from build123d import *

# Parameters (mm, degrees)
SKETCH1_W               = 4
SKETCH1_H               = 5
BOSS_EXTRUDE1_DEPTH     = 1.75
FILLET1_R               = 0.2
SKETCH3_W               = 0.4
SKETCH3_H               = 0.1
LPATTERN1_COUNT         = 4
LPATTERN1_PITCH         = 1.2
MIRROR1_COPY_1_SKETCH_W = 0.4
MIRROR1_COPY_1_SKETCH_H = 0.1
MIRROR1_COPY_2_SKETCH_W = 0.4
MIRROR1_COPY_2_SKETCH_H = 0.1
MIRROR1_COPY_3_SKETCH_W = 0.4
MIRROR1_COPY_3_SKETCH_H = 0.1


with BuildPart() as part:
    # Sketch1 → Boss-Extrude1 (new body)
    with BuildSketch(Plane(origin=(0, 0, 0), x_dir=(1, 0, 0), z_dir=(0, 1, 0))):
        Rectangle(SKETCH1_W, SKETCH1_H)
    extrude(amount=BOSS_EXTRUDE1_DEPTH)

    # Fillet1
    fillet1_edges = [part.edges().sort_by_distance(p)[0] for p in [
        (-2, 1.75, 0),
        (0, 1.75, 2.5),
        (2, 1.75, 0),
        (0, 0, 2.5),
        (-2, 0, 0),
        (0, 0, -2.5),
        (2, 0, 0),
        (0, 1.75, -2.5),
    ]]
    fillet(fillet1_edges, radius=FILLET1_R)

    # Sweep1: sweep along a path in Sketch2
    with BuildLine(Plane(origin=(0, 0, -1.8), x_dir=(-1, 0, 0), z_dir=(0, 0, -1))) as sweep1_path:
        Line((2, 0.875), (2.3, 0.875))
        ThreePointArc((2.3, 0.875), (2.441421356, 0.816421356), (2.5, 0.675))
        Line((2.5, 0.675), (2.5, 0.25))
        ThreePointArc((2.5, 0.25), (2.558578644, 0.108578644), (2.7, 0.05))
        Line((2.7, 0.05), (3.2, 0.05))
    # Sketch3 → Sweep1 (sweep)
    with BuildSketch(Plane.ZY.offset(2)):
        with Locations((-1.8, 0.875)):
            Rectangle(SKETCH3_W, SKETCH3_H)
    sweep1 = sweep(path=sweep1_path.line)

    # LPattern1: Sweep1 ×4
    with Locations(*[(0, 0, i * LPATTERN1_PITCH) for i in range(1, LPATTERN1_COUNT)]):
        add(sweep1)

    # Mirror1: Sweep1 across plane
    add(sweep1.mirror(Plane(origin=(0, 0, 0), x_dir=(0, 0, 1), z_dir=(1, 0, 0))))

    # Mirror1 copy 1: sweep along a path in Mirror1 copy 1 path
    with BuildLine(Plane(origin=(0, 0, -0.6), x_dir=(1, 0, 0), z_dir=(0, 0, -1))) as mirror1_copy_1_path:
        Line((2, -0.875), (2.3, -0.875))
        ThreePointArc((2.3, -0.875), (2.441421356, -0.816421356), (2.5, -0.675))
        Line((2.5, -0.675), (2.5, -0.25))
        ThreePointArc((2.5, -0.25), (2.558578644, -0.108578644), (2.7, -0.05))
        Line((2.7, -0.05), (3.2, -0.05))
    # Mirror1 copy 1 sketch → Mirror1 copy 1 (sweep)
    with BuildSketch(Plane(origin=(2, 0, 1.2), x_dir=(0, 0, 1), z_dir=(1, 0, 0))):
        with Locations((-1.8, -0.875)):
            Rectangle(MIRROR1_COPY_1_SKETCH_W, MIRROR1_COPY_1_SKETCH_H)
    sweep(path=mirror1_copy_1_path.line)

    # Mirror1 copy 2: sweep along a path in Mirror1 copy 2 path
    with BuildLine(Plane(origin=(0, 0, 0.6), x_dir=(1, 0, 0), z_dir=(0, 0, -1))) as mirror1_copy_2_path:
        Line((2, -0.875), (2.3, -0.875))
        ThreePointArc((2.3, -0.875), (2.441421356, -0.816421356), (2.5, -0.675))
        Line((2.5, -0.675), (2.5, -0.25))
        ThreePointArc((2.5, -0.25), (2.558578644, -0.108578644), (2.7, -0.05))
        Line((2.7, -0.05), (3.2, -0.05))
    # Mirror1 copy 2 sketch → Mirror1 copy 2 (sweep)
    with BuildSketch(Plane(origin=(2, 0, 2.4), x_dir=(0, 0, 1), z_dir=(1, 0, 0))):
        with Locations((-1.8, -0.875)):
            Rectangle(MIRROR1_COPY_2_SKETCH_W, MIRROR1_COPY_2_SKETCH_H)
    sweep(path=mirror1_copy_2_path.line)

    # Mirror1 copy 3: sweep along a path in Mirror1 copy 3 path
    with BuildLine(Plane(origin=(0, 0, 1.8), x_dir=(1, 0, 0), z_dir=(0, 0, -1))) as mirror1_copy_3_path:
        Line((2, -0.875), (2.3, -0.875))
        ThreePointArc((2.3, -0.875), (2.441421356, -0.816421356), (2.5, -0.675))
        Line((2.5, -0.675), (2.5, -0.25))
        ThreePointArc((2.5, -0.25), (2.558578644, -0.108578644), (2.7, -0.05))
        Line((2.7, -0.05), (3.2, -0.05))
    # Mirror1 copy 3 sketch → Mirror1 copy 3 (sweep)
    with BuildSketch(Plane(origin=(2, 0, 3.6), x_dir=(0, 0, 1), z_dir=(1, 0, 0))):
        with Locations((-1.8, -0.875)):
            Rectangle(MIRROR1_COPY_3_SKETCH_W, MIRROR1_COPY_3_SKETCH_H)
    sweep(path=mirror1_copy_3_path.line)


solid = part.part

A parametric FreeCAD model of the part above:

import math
import FreeCAD as App
import Part
import Sketcher

V = App.Vector


def edges_at(feature, points):
    """Names of the edges that pass closest to the given points."""
    edges = feature.Shape.Edges
    near = lambda p: min(range(len(edges)), key=lambda i: edges[i].distToShape(Part.Vertex(*p))[0])
    return sorted({f"Edge{near(p) + 1}" for p in points})

doc = App.newDocument("Part")
body = doc.addObject("PartDesign::Body", "Body")

# Sketch on XZ plane
sketch1 = doc.addObject("Sketcher::SketchObject", "Sketch")
body.addObject(sketch1)
sketch1.AttachmentSupport = (doc.XZ_Plane, [""])
sketch1.MapMode = "FlatFace"
sketch1.addGeometry([
    Part.LineSegment(V(-2, -2.5, 0), V(-2, 2.5, 0)),
    Part.LineSegment(V(-2, 2.5, 0), V(2, 2.5, 0)),
    Part.LineSegment(V(2, 2.5, 0), V(2, -2.5, 0)),
    Part.LineSegment(V(2, -2.5, 0), V(-2, -2.5, 0)),
], False)
sketch1.addConstraint([
    Sketcher.Constraint("Coincident", 0, 2, 1, 1),
    Sketcher.Constraint("Coincident", 1, 2, 2, 1),
    Sketcher.Constraint("Coincident", 2, 2, 3, 1),
    Sketcher.Constraint("Coincident", 3, 2, 0, 1),
    Sketcher.Constraint("Vertical", 0),
    Sketcher.Constraint("Horizontal", 1),
    Sketcher.Constraint("Vertical", 2),
    Sketcher.Constraint("Horizontal", 3),
    Sketcher.Constraint("Symmetric", 0, 2, 2, 2, -1, 1),
    Sketcher.Constraint("DistanceX", 1, 1, 1, 2, 4.0),
    Sketcher.Constraint("DistanceY", 0, 1, 0, 2, 5.0),
])
pad1 = doc.addObject("PartDesign::Pad", "Pad")
body.addObject(pad1)
pad1.Profile = sketch1
pad1.Length = 1.75
pad1.Reversed = True
doc.recompute()

fillet = doc.addObject("PartDesign::Fillet", "Fillet")
body.addObject(fillet)
fillet.Base = (pad1, edges_at(pad1, [
    (-2, 1.75, 0),
    (0, 1.75, 2.5),
    (2, 1.75, 0),
    (0, 0, 2.5),
    (-2, 0, 0),
    (0, 0, -2.5),
    (2, 0, 0),
    (0, 1.75, -2.5),
]))
fillet.Radius = 0.2

# Sketch on YZ plane
sketch2 = doc.addObject("Sketcher::SketchObject", "Sketch001")
body.addObject(sketch2)
sketch2.AttachmentSupport = (doc.YZ_Plane, [""])
sketch2.MapMode = "FlatFace"
sketch2.AttachmentOffset = App.Placement(V(0, 0, -2), App.Rotation())
sketch2.addGeometry([
    Part.LineSegment(V(0.93, -2, 0), V(0.82, -2, 0)),
    Part.LineSegment(V(0.82, -2, 0), V(0.82, -1.6, 0)),
    Part.LineSegment(V(0.82, -1.6, 0), V(0.93, -1.6, 0)),
    Part.LineSegment(V(0.93, -1.6, 0), V(0.93, -2, 0)),
], False)
sketch2.addConstraint([
    Sketcher.Constraint("Coincident", 0, 2, 1, 1),
    Sketcher.Constraint("Coincident", 1, 2, 2, 1),
    Sketcher.Constraint("Coincident", 2, 2, 3, 1),
    Sketcher.Constraint("Coincident", 3, 2, 0, 1),
    Sketcher.Constraint("Horizontal", 0),
    Sketcher.Constraint("Vertical", 1),
    Sketcher.Constraint("Horizontal", 2),
    Sketcher.Constraint("Vertical", 3),
    Sketcher.Constraint("DistanceX", 0, 2, 0, 1, 0.1),
    Sketcher.Constraint("DistanceY", 1, 1, 1, 2, 0.4),
    Sketcher.Constraint("DistanceY", 0, 2, -1, 1, 2.0),
    Sketcher.Constraint("DistanceX", -1, 1, 0, 2, 0.825),
])

# Sketch on XY plane
sketch3 = doc.addObject("Sketcher::SketchObject", "Sketch002")
body.addObject(sketch3)
sketch3.AttachmentSupport = (doc.XY_Plane, [""])
sketch3.MapMode = "FlatFace"
sketch3.AttachmentOffset = App.Placement(V(0, 0, -1.8), App.Rotation())
sketch3.addGeometry([
    Part.LineSegment(V(-2, 0.88, 0), V(-2.3, 0.88, 0)),  # 0
    Part.ArcOfCircle(Part.Circle(V(-2.3, 0.67, 0), V(0, 0, 1), 0.2), math.radians(90), math.radians(180)),  # 1
    Part.LineSegment(V(-2.5, 0.68, 0), V(-2.5, 0.25, 0)),  # 2
    Part.ArcOfCircle(Part.Circle(V(-2.7, 0.25, 0), V(0, 0, 1), 0.2), math.radians(-90), math.radians(0)),  # 3
    Part.LineSegment(V(-2.7, 0.05, 0), V(-3.2, 0.05, 0)),  # 4
], False)
sketch3.addConstraint([
    Sketcher.Constraint("Tangent", 0, 2, 1, 1),
    Sketcher.Constraint("Tangent", 1, 2, 2, 1),
    Sketcher.Constraint("Tangent", 2, 2, 3, 2),
    Sketcher.Constraint("Tangent", 3, 1, 4, 1),
    Sketcher.Constraint("Horizontal", 0),
    Sketcher.Constraint("Vertical", 2),
    Sketcher.Constraint("Horizontal", 4),
    Sketcher.Constraint("Equal", 1, 3),
    Sketcher.Constraint("Radius", 1, 0.2),
    Sketcher.Constraint("DistanceX", 0, 2, 0, 1, 0.3),
    Sketcher.Constraint("DistanceX", 4, 2, 4, 1, 0.5),
    Sketcher.Constraint("DistanceX", 0, 1, -1, 1, 2.0),
    Sketcher.Constraint("DistanceY", 2, 2, 2, 1, 0.425),
    Sketcher.Constraint("DistanceY", -1, 1, 3, 3, 0.25),
])
doc.recompute()

additivepipe = doc.addObject("PartDesign::AdditivePipe", "AdditivePipe")
body.addObject(additivepipe)
additivepipe.Profile = sketch2
additivepipe.Spine = (sketch3, ["Edge1", "Edge2", "Edge3", "Edge4", "Edge5"])
doc.recompute()

linearpattern = doc.addObject("PartDesign::LinearPattern", "LinearPattern")
body.addObject(linearpattern)
linearpattern.Originals = [additivepipe]
linearpattern.Direction = (doc.Z_Axis, [""])
linearpattern.Mode = "offset"
linearpattern.Offset = 1.2
linearpattern.Occurrences = 4
body.Tip = linearpattern
doc.recompute()

mirrored = doc.addObject("PartDesign::Mirrored", "Mirrored")
body.addObject(mirrored)
mirrored.Originals = [additivepipe]
mirrored.MirrorPlane = (doc.YZ_Plane, [""])
body.Tip = mirrored

# Sketch on YZ plane
sketch4 = doc.addObject("Sketcher::SketchObject", "Sketch003")
body.addObject(sketch4)
sketch4.AttachmentSupport = (doc.YZ_Plane, [""])
sketch4.MapMode = "FlatFace"
sketch4.AttachmentOffset = App.Placement(V(0, 0, 2), App.Rotation())
sketch4.addGeometry([
    Part.LineSegment(V(0.82, -0.8, 0), V(0.93, -0.8, 0)),
    Part.LineSegment(V(0.93, -0.8, 0), V(0.93, -0.4, 0)),
    Part.LineSegment(V(0.93, -0.4, 0), V(0.82, -0.4, 0)),
    Part.LineSegment(V(0.82, -0.4, 0), V(0.82, -0.8, 0)),
], False)
sketch4.addConstraint([
    Sketcher.Constraint("Coincident", 0, 2, 1, 1),
    Sketcher.Constraint("Coincident", 1, 2, 2, 1),
    Sketcher.Constraint("Coincident", 2, 2, 3, 1),
    Sketcher.Constraint("Coincident", 3, 2, 0, 1),
    Sketcher.Constraint("Horizontal", 0),
    Sketcher.Constraint("Vertical", 1),
    Sketcher.Constraint("Horizontal", 2),
    Sketcher.Constraint("Vertical", 3),
    Sketcher.Constraint("DistanceX", 0, 1, 0, 2, 0.1),
    Sketcher.Constraint("DistanceY", 1, 1, 1, 2, 0.4),
    Sketcher.Constraint("DistanceY", 0, 2, -1, 1, 0.8),
    Sketcher.Constraint("DistanceX", -1, 1, 0, 2, 0.925),
])

# Sketch on XY plane
sketch5 = doc.addObject("Sketcher::SketchObject", "Sketch004")
body.addObject(sketch5)
sketch5.AttachmentSupport = (doc.XY_Plane, [""])
sketch5.MapMode = "FlatFace"
sketch5.AttachmentOffset = App.Placement(V(0, 0, -0.6), App.Rotation())
sketch5.addGeometry([
    Part.LineSegment(V(2, 0.88, 0), V(2.3, 0.88, 0)),  # 0
    Part.ArcOfCircle(Part.Circle(V(2.3, 0.67, 0), V(0, 0, 1), 0.2), math.radians(0), math.radians(90)),  # 1
    Part.LineSegment(V(2.5, 0.68, 0), V(2.5, 0.25, 0)),  # 2
    Part.ArcOfCircle(Part.Circle(V(2.7, 0.25, 0), V(0, 0, 1), 0.2), math.radians(-180), math.radians(-90)),  # 3
    Part.LineSegment(V(2.7, 0.05, 0), V(3.2, 0.05, 0)),  # 4
], False)
sketch5.addConstraint([
    Sketcher.Constraint("Tangent", 0, 2, 1, 2),
    Sketcher.Constraint("Tangent", 1, 1, 2, 1),
    Sketcher.Constraint("Tangent", 2, 2, 3, 1),
    Sketcher.Constraint("Tangent", 3, 2, 4, 1),
    Sketcher.Constraint("Horizontal", 0),
    Sketcher.Constraint("Vertical", 2),
    Sketcher.Constraint("Horizontal", 4),
    Sketcher.Constraint("Equal", 1, 3),
    Sketcher.Constraint("Radius", 1, 0.2),
    Sketcher.Constraint("DistanceX", 0, 1, 0, 2, 0.3),
    Sketcher.Constraint("DistanceX", 4, 1, 4, 2, 0.5),
    Sketcher.Constraint("DistanceX", -1, 1, 0, 1, 2.0),
    Sketcher.Constraint("DistanceY", 2, 2, 2, 1, 0.425),
    Sketcher.Constraint("DistanceY", -1, 1, 3, 3, 0.25),
])
doc.recompute()

additivepipe2 = doc.addObject("PartDesign::AdditivePipe", "AdditivePipe001")
body.addObject(additivepipe2)
additivepipe2.Profile = sketch4
additivepipe2.Spine = (sketch5, ["Edge1", "Edge2", "Edge3", "Edge4", "Edge5"])

# Sketch on YZ plane
sketch6 = doc.addObject("Sketcher::SketchObject", "Sketch005")
body.addObject(sketch6)
sketch6.AttachmentSupport = (doc.YZ_Plane, [""])
sketch6.MapMode = "FlatFace"
sketch6.AttachmentOffset = App.Placement(V(0, 0, 2), App.Rotation())
sketch6.addGeometry([
    Part.LineSegment(V(0.82, 0.4, 0), V(0.93, 0.4, 0)),
    Part.LineSegment(V(0.93, 0.4, 0), V(0.93, 0.8, 0)),
    Part.LineSegment(V(0.93, 0.8, 0), V(0.82, 0.8, 0)),
    Part.LineSegment(V(0.82, 0.8, 0), V(0.82, 0.4, 0)),
], False)
sketch6.addConstraint([
    Sketcher.Constraint("Coincident", 0, 2, 1, 1),
    Sketcher.Constraint("Coincident", 1, 2, 2, 1),
    Sketcher.Constraint("Coincident", 2, 2, 3, 1),
    Sketcher.Constraint("Coincident", 3, 2, 0, 1),
    Sketcher.Constraint("Horizontal", 0),
    Sketcher.Constraint("Vertical", 1),
    Sketcher.Constraint("Horizontal", 2),
    Sketcher.Constraint("Vertical", 3),
    Sketcher.Constraint("DistanceX", 0, 1, 0, 2, 0.1),
    Sketcher.Constraint("DistanceY", 1, 1, 1, 2, 0.4),
    Sketcher.Constraint("DistanceY", -1, 1, 0, 2, 0.4),
    Sketcher.Constraint("DistanceX", -1, 1, 0, 2, 0.925),
])

# Sketch on XY plane
sketch7 = doc.addObject("Sketcher::SketchObject", "Sketch006")
body.addObject(sketch7)
sketch7.AttachmentSupport = (doc.XY_Plane, [""])
sketch7.MapMode = "FlatFace"
sketch7.AttachmentOffset = App.Placement(V(0, 0, 0.6), App.Rotation())
sketch7.addGeometry([
    Part.LineSegment(V(2, 0.88, 0), V(2.3, 0.88, 0)),  # 0
    Part.ArcOfCircle(Part.Circle(V(2.3, 0.67, 0), V(0, 0, 1), 0.2), math.radians(0), math.radians(90)),  # 1
    Part.LineSegment(V(2.5, 0.68, 0), V(2.5, 0.25, 0)),  # 2
    Part.ArcOfCircle(Part.Circle(V(2.7, 0.25, 0), V(0, 0, 1), 0.2), math.radians(-180), math.radians(-90)),  # 3
    Part.LineSegment(V(2.7, 0.05, 0), V(3.2, 0.05, 0)),  # 4
], False)
sketch7.addConstraint([
    Sketcher.Constraint("Tangent", 0, 2, 1, 2),
    Sketcher.Constraint("Tangent", 1, 1, 2, 1),
    Sketcher.Constraint("Tangent", 2, 2, 3, 1),
    Sketcher.Constraint("Tangent", 3, 2, 4, 1),
    Sketcher.Constraint("Horizontal", 0),
    Sketcher.Constraint("Vertical", 2),
    Sketcher.Constraint("Horizontal", 4),
    Sketcher.Constraint("Equal", 1, 3),
    Sketcher.Constraint("Radius", 1, 0.2),
    Sketcher.Constraint("DistanceX", 0, 1, 0, 2, 0.3),
    Sketcher.Constraint("DistanceX", 4, 1, 4, 2, 0.5),
    Sketcher.Constraint("DistanceX", -1, 1, 0, 1, 2.0),
    Sketcher.Constraint("DistanceY", 2, 2, 2, 1, 0.425),
    Sketcher.Constraint("DistanceY", -1, 1, 3, 3, 0.25),
])
doc.recompute()

additivepipe3 = doc.addObject("PartDesign::AdditivePipe", "AdditivePipe002")
body.addObject(additivepipe3)
additivepipe3.Profile = sketch6
additivepipe3.Spine = (sketch7, ["Edge1", "Edge2", "Edge3", "Edge4", "Edge5"])

# Sketch on YZ plane
sketch8 = doc.addObject("Sketcher::SketchObject", "Sketch007")
body.addObject(sketch8)
sketch8.AttachmentSupport = (doc.YZ_Plane, [""])
sketch8.MapMode = "FlatFace"
sketch8.AttachmentOffset = App.Placement(V(0, 0, 2), App.Rotation())
sketch8.addGeometry([
    Part.LineSegment(V(0.82, 1.6, 0), V(0.93, 1.6, 0)),
    Part.LineSegment(V(0.93, 1.6, 0), V(0.93, 2, 0)),
    Part.LineSegment(V(0.93, 2, 0), V(0.82, 2, 0)),
    Part.LineSegment(V(0.82, 2, 0), V(0.82, 1.6, 0)),
], False)
sketch8.addConstraint([
    Sketcher.Constraint("Coincident", 0, 2, 1, 1),
    Sketcher.Constraint("Coincident", 1, 2, 2, 1),
    Sketcher.Constraint("Coincident", 2, 2, 3, 1),
    Sketcher.Constraint("Coincident", 3, 2, 0, 1),
    Sketcher.Constraint("Horizontal", 0),
    Sketcher.Constraint("Vertical", 1),
    Sketcher.Constraint("Horizontal", 2),
    Sketcher.Constraint("Vertical", 3),
    Sketcher.Constraint("DistanceX", 0, 1, 0, 2, 0.1),
    Sketcher.Constraint("DistanceY", 1, 1, 1, 2, 0.4),
    Sketcher.Constraint("DistanceY", -1, 1, 1, 2, 2.0),
    Sketcher.Constraint("DistanceX", -1, 1, 0, 2, 0.925),
])

# Sketch on XY plane
sketch9 = doc.addObject("Sketcher::SketchObject", "Sketch008")
body.addObject(sketch9)
sketch9.AttachmentSupport = (doc.XY_Plane, [""])
sketch9.MapMode = "FlatFace"
sketch9.AttachmentOffset = App.Placement(V(0, 0, 1.8), App.Rotation())
sketch9.addGeometry([
    Part.LineSegment(V(2, 0.88, 0), V(2.3, 0.88, 0)),  # 0
    Part.ArcOfCircle(Part.Circle(V(2.3, 0.67, 0), V(0, 0, 1), 0.2), math.radians(0), math.radians(90)),  # 1
    Part.LineSegment(V(2.5, 0.68, 0), V(2.5, 0.25, 0)),  # 2
    Part.ArcOfCircle(Part.Circle(V(2.7, 0.25, 0), V(0, 0, 1), 0.2), math.radians(-180), math.radians(-90)),  # 3
    Part.LineSegment(V(2.7, 0.05, 0), V(3.2, 0.05, 0)),  # 4
], False)
sketch9.addConstraint([
    Sketcher.Constraint("Tangent", 0, 2, 1, 2),
    Sketcher.Constraint("Tangent", 1, 1, 2, 1),
    Sketcher.Constraint("Tangent", 2, 2, 3, 1),
    Sketcher.Constraint("Tangent", 3, 2, 4, 1),
    Sketcher.Constraint("Horizontal", 0),
    Sketcher.Constraint("Vertical", 2),
    Sketcher.Constraint("Horizontal", 4),
    Sketcher.Constraint("Equal", 1, 3),
    Sketcher.Constraint("Radius", 1, 0.2),
    Sketcher.Constraint("DistanceX", 0, 1, 0, 2, 0.3),
    Sketcher.Constraint("DistanceX", 4, 1, 4, 2, 0.5),
    Sketcher.Constraint("DistanceX", -1, 1, 0, 1, 2.0),
    Sketcher.Constraint("DistanceY", 2, 2, 2, 1, 0.425),
    Sketcher.Constraint("DistanceY", -1, 1, 3, 3, 0.25),
])
doc.recompute()

additivepipe4 = doc.addObject("PartDesign::AdditivePipe", "AdditivePipe003")
body.addObject(additivepipe4)
additivepipe4.Profile = sketch8
additivepipe4.Spine = (sketch9, ["Edge1", "Edge2", "Edge3", "Edge4", "Edge5"])

doc.recompute()
